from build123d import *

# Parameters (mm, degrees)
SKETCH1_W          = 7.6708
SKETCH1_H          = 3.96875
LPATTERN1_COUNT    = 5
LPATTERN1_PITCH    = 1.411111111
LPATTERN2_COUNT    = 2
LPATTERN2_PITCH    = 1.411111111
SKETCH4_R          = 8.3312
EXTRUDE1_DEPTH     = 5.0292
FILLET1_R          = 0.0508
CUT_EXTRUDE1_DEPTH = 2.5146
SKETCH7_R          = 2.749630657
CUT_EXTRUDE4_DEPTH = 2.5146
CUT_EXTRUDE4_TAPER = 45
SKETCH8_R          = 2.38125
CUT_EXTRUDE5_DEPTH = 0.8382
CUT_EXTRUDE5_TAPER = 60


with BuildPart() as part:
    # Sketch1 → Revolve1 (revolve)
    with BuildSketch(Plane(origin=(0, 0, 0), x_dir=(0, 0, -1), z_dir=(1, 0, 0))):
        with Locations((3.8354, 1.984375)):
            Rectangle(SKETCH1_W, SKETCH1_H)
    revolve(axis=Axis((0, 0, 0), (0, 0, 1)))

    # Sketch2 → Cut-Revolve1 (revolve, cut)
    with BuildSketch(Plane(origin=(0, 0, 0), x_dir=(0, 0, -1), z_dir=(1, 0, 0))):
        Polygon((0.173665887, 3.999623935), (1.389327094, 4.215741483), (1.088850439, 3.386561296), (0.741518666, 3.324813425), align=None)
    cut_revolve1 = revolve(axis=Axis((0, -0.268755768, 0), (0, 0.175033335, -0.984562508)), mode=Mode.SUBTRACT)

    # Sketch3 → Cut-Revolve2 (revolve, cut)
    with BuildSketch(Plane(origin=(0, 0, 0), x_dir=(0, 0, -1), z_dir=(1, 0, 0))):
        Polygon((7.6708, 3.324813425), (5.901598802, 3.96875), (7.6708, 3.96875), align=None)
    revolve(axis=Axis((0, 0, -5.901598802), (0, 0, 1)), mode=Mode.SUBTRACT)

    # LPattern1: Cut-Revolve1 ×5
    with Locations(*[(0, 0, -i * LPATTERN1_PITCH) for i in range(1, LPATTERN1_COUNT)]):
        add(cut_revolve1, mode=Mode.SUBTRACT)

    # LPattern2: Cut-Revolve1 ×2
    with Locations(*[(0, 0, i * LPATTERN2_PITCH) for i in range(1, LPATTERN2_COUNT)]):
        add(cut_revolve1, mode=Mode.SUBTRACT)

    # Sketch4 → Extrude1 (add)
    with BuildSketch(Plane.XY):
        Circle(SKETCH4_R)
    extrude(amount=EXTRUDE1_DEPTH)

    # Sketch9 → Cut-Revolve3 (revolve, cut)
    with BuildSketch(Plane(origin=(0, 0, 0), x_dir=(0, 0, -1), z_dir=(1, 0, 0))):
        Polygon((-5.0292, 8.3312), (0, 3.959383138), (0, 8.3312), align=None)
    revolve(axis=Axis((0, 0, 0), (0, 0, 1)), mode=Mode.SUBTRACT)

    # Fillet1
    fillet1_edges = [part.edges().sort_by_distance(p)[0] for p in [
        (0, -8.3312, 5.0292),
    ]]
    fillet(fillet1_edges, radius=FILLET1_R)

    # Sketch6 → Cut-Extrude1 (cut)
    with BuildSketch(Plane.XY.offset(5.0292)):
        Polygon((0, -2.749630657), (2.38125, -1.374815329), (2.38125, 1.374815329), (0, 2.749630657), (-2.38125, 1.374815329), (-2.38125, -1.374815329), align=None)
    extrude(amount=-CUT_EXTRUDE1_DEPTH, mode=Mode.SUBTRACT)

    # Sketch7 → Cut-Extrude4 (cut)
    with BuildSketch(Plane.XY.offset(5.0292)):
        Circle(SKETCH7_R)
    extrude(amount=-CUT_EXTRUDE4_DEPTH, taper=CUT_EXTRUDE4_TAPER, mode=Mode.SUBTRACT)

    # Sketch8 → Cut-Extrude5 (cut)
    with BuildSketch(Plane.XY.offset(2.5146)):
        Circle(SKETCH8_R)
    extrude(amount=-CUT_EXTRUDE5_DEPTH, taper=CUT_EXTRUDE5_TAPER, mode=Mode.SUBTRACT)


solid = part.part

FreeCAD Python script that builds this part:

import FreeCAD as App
import Part
import Sketcher

V = App.Vector
Q = App.Units.Quantity


def edges_at(feature, points):
    """Names of the edges that pass closest to the given points."""
    edges = feature.Shape.Edges
    near = lambda p: min(range(len(edges)), key=lambda i: edges[i].distToShape(Part.Vertex(*p))[0])
    return sorted({f"Edge{near(p) + 1}" for p in points})


def add_polygon(sketch, points):
    """Adds a closed chain of lines whose ends are joined by coincident constraints."""
    first, n = sketch.GeometryCount, len(points)
    for a, b in zip(points, points[1:] + points[:1]):
        sketch.addGeometry(Part.LineSegment(App.Vector(*a, 0), App.Vector(*b, 0)), False)
    for i in range(n):
        sketch.addConstraint(Sketcher.Constraint("Coincident", first + i, 2, first + (i + 1) % n, 1))

doc = App.newDocument("Part")
params = doc.addObject("Spreadsheet::Sheet", "Params")
for row, (alias, value) in enumerate([
    ("sketch1_width", "0.15625 in"),
    ("sketch1_height", "0.302 in"),
    ("revolution_angle", "360 deg"),
    ("groove_angle", "360 deg"),
    ("groove2_angle", "360 deg"),
    ("linearpattern_pitch", "1.411111 mm"),
    ("linearpattern2_pitch", "1.411111 mm"),
    ("sketch4_diameter", "0.656 in"),
    ("pad1_length", "0.198 in"),
    ("sketch5_height", "0.198 in"),
    ("groove3_angle", "360 deg"),
    ("fillet_radius", "0.002 in"),
    ("pocket1_length", "0.099 in"),
    ("pocket2_length", "0.099 in"),
    ("pocket2_taper", "-45 deg"),
    ("sketch8_diameter", "0.1875 in"),
    ("pocket3_length", "0.033 in"),
    ("pocket3_taper", "-60 deg"),
], start=1):
    params.set(f"A{row}", alias)
    params.set(f"B{row}", "=" + value)
    params.setAlias(f"B{row}", alias)

body = doc.addObject("PartDesign::Body", "Body")

# Sketch on YZ plane
sketch1 = doc.addObject("Sketcher::SketchObject", "Sketch")
body.addObject(sketch1)
sketch1.AttachmentSupport = (doc.YZ_Plane, [""])
sketch1.MapMode = "FlatFace"
add_polygon(sketch1, [(4, 0), (0, 0), (0, -7.7), (4, -7.7)])  # lines 0-3
sketch1.addConstraint([
    Sketcher.Constraint("Horizontal", 0),
    Sketcher.Constraint("Vertical", 1),
    Sketcher.Constraint("Horizontal", 2),
    Sketcher.Constraint("Vertical", 3),
    Sketcher.Constraint("Coincident", 0, 2, -1, 1),
    Sketcher.Constraint("DistanceX", 0, 2, 0, 1, Q("0.15625 in")),
    Sketcher.Constraint("DistanceY", 1, 2, 1, 1, Q("0.302 in")),
])
sketch1.setExpression("Constraints[9]", "Params.sketch1_width")
sketch1.setExpression("Constraints[10]", "Params.sketch1_height")
revolution = doc.addObject("PartDesign::Revolution", "Revolution")
body.addObject(revolution)
revolution.Profile = sketch1
revolution.ReferenceAxis = (sketch1, ["V_Axis"])
revolution.setExpression("Angle", "Params.revolution_angle")

# Sketch on YZ plane
sketch2 = doc.addObject("Sketcher::SketchObject", "Sketch001")
body.addObject(sketch2)
sketch2.AttachmentSupport = (doc.YZ_Plane, [""])
sketch2.MapMode = "FlatFace"
add_polygon(sketch2, [(4.22, -1.39), (4, -0.17), (3.32, -0.74), (3.39, -1.09)])  # lines 0-3
sketch2.addGeometry(Part.LineSegment(V(-0.11, -0.9, 0), V(0.11, -2.12, 0)), True)  # axis
sketch2.addConstraint([
    Sketcher.Constraint("Parallel", 0, 2),
    Sketcher.Constraint("Parallel", 2, 4),
    Sketcher.Constraint("Equal", 1, 3),
    Sketcher.Constraint("Equal", 0, 4),
    Sketcher.Constraint("DistanceY", 4, 1, 1, 2, Q("0.162402 mm")),
    Sketcher.Constraint("DistanceX", 4, 1, 3, 2, Q("4.3238 mm")),
    Sketcher.Constraint("DistanceY", 1, 2, -1, 1, Q("0.741519 mm")),
    Sketcher.Constraint("DistanceX", -1, 1, 2, 2, Q("3.386561 mm")),
    Sketcher.Constraint("DistanceY", 2, 2, -1, 1, Q("1.08885 mm")),
    Sketcher.Constraint("DistanceX", -1, 1, 3, 2, Q("4.215741 mm")),
    Sketcher.Constraint("DistanceX", -1, 1, 4, 2, Q("0.108059 mm")),
    Sketcher.Constraint("DistanceY", 4, 2, -1, 1, Q("2.119582 mm")),
])
groove = doc.addObject("PartDesign::Groove", "Groove")
body.addObject(groove)
groove.Profile = sketch2
groove.ReferenceAxis = (sketch2, ["Axis0"])
groove.setExpression("Angle", "Params.groove_angle")

# Sketch on YZ plane
sketch3 = doc.addObject("Sketcher::SketchObject", "Sketch002")
body.addObject(sketch3)
sketch3.AttachmentSupport = (doc.YZ_Plane, [""])
sketch3.MapMode = "FlatFace"
add_polygon(sketch3, [(4, -5.9), (3.3, -7.7), (4, -7.7)])  # lines 0-2
sketch3.addConstraint([
    Sketcher.Constraint("Horizontal", 1),
    Sketcher.Constraint("Vertical", 2),
    Sketcher.Constraint("Angle", 0, Q("-110 deg")),
    Sketcher.Constraint("DistanceY", 0, 2, -1, 1, Q("0.302 in")),
    Sketcher.Constraint("DistanceX", -1, 1, 1, 2, Q("0.15625 in")),
    Sketcher.Constraint("DistanceY", 2, 1, 2, 2, Q("1.769201 mm")),
])
groove2 = doc.addObject("PartDesign::Groove", "Groove001")
body.addObject(groove2)
groove2.Profile = sketch3
groove2.ReferenceAxis = (sketch3, ["V_Axis"])
groove2.setExpression("Angle", "Params.groove2_angle")
doc.recompute()

linearpattern = doc.addObject("PartDesign::LinearPattern", "LinearPattern")
body.addObject(linearpattern)
linearpattern.Originals = [groove]
linearpattern.Direction = (doc.Z_Axis, [""])
linearpattern.Mode = "offset"
linearpattern.setExpression("Offset", "Params.linearpattern_pitch")
linearpattern.Occurrences = 5
linearpattern.Reversed = True
body.Tip = linearpattern
doc.recompute()

linearpattern2 = doc.addObject("PartDesign::LinearPattern", "LinearPattern001")
body.addObject(linearpattern2)
linearpattern2.Originals = [groove]
linearpattern2.Direction = (doc.Z_Axis, [""])
linearpattern2.Mode = "offset"
linearpattern2.setExpression("Offset", "Params.linearpattern2_pitch")
linearpattern2.Occurrences = 2
body.Tip = linearpattern2

# Sketch on XY plane
sketch4 = doc.addObject("Sketcher::SketchObject", "Sketch003")
body.addObject(sketch4)
sketch4.AttachmentSupport = (doc.XY_Plane, [""])
sketch4.MapMode = "FlatFace"
sketch4.addGeometry(Part.Circle(V(0, 0, 0), V(0, 0, 1), 8), False)
sketch4.addConstraint([
    Sketcher.Constraint("Coincident", 0, 3, -1, 1),
    Sketcher.Constraint("Diameter", 0, Q("0.656 in")),
])
sketch4.setExpression("Constraints[1]", "Params.sketch4_diameter")
pad1 = doc.addObject("PartDesign::Pad", "Pad")
body.addObject(pad1)
pad1.Profile = sketch4
pad1.setExpression("Length", "Params.pad1_length")

# Sketch on YZ plane
sketch5 = doc.addObject("Sketcher::SketchObject", "Sketch004")
body.addObject(sketch5)
sketch5.AttachmentSupport = (doc.YZ_Plane, [""])
sketch5.MapMode = "FlatFace"
add_polygon(sketch5, [(8.3, 5), (4, 0), (8.3, 0)])  # lines 0-2
sketch5.addConstraint([
    Sketcher.Constraint("Horizontal", 1),
    Sketcher.Constraint("Vertical", 2),
    Sketcher.Constraint("PointOnObject", 0, 2, -1),
    Sketcher.Constraint("Angle", 0, Q("-131 deg")),
    Sketcher.Constraint("DistanceY", 2, 1, 2, 2, Q("0.198 in")),
    Sketcher.Constraint("DistanceX", -1, 1, 1, 2, Q("0.328 in")),
])
sketch5.setExpression("Constraints[7]", "Params.sketch5_height")
groove3 = doc.addObject("PartDesign::Groove", "Groove002")
body.addObject(groove3)
groove3.Profile = sketch5
groove3.ReferenceAxis = (sketch5, ["V_Axis"])
groove3.setExpression("Angle", "Params.groove3_angle")
doc.recompute()

fillet = doc.addObject("PartDesign::Fillet", "Fillet")
body.addObject(fillet)
fillet.Base = (groove3, edges_at(groove3, [(0, -8.331, 5.029)]))
fillet.setExpression("Radius", "Params.fillet_radius")

# Sketch on XY plane
sketch6 = doc.addObject("Sketcher::SketchObject", "Sketch005")
body.addObject(sketch6)
sketch6.AttachmentSupport = (doc.XY_Plane, [""])
sketch6.MapMode = "FlatFace"
sketch6.AttachmentOffset = App.Placement(V(0, 0, 0.198 * 25.4), App.Rotation())
add_polygon(sketch6, [(0, -2.7), (2.4, -1.4), (2.4, 1.4), (0, 2.7), (-2.4, 1.4), (-2.4, -1.4)])  # lines 0-5
sketch6.addConstraint([
    Sketcher.Constraint("Vertical", 1),
    Sketcher.Constraint("Vertical", 4),
    Sketcher.Constraint("Symmetric", 0, 2, 3, 2, -1, 1),
    Sketcher.Constraint("Symmetric", 2, 2, 5, 2, -1, 1),
    Sketcher.Constraint("PointOnObject", 2, 2, -2),
    Sketcher.Constraint("Parallel", 2, 5),
    Sketcher.Constraint("Horizontal", 1, 2, 3, 2),
    Sketcher.Constraint("Angle", 0, Q("30 deg")),
    Sketcher.Constraint("DistanceX", -1, 1, 0, 2, Q("0.09375 in")),
    Sketcher.Constraint("DistanceY", 1, 1, 1, 2, Q("2.749631 mm")),
])
pocket1 = doc.addObject("PartDesign::Pocket", "Pocket")
body.addObject(pocket1)
pocket1.Profile = sketch6
pocket1.setExpression("Length", "Params.pocket1_length")

# Sketch on XY plane
sketch7 = doc.addObject("Sketcher::SketchObject", "Sketch006")
body.addObject(sketch7)
sketch7.AttachmentSupport = (doc.XY_Plane, [""])
sketch7.MapMode = "FlatFace"
sketch7.AttachmentOffset = App.Placement(V(0, 0, 0.198 * 25.4), App.Rotation())
sketch7.addGeometry(Part.Circle(V(0, 0, 0), V(0, 0, 1), 2.7), False)
sketch7.addConstraint([
    Sketcher.Constraint("Coincident", 0, 3, -1, 1),
    Sketcher.Constraint("Diameter", 0, Q("5.499261 mm")),
])
pocket2 = doc.addObject("PartDesign::Pocket", "Pocket001")
body.addObject(pocket2)
pocket2.Profile = sketch7
pocket2.setExpression("Length", "Params.pocket2_length")
pocket2.setExpression("TaperAngle", "Params.pocket2_taper")

# Sketch on XY plane
sketch8 = doc.addObject("Sketcher::SketchObject", "Sketch007")
body.addObject(sketch8)
sketch8.AttachmentSupport = (doc.XY_Plane, [""])
sketch8.MapMode = "FlatFace"
sketch8.AttachmentOffset = App.Placement(V(0, 0, 0.099 * 25.4), App.Rotation())
sketch8.addGeometry(Part.Circle(V(0, 0, 0), V(0, 0, 1), 2.4), False)
sketch8.addConstraint([
    Sketcher.Constraint("Coincident", 0, 3, -1, 1),
    Sketcher.Constraint("Diameter", 0, Q("0.1875 in")),
])
sketch8.setExpression("Constraints[1]", "Params.sketch8_diameter")
pocket3 = doc.addObject("PartDesign::Pocket", "Pocket002")
body.addObject(pocket3)
pocket3.Profile = sketch8
pocket3.setExpression("Length", "Params.pocket3_length")
pocket3.setExpression("TaperAngle", "Params.pocket3_taper")

doc.recompute()
